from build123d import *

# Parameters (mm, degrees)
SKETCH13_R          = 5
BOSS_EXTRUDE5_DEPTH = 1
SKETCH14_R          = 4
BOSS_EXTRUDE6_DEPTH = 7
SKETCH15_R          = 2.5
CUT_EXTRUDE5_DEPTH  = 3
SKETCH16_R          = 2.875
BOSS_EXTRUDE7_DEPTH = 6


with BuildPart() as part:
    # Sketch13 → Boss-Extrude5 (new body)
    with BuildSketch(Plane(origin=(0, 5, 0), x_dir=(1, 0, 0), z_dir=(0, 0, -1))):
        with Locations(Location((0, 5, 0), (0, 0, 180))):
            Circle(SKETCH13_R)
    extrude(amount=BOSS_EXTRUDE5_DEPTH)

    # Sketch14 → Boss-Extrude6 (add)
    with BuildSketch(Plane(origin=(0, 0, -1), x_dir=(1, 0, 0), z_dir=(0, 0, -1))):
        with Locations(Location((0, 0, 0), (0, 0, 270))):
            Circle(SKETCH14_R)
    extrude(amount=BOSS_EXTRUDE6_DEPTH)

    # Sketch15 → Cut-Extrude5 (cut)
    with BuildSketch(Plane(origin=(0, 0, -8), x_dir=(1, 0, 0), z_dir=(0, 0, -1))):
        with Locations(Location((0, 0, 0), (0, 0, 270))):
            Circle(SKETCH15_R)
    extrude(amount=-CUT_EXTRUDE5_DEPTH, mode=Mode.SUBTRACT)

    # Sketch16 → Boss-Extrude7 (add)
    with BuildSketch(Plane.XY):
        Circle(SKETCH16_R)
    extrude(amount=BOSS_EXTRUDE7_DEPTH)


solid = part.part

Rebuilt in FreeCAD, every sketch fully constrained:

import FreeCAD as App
import Part
import Sketcher

V = App.Vector
Q = App.Units.Quantity

doc = App.newDocument("Part")
body = doc.addObject("PartDesign::Body", "Body")

sketch1 = body.newObject("Sketcher::SketchObject", "Sketch")
sketch1.AttachmentSupport = (doc.getObject("XY_Plane"), [""])
sketch1.MapMode = "FlatFace"
sketch1.addGeometry(Part.Circle(V(0, 0, 0), V(0, 0, 1), 5), False)
sketch1.addConstraint([
    Sketcher.Constraint("Coincident", 0, 3, -1, 1),
    Sketcher.Constraint("Diameter", 0, Q("10 mm")),
])
pad1 = body.newObject("PartDesign::Pad", "Pad")
pad1.Profile = sketch1
pad1.Length = 1
pad1.Reversed = True

sketch2 = body.newObject("Sketcher::SketchObject", "Sketch001")
sketch2.AttachmentSupport = (doc.getObject("XY_Plane"), [""])
sketch2.MapMode = "FlatFace"
sketch2.AttachmentOffset = App.Placement(V(0, 0, -1), App.Rotation())
sketch2.addGeometry(Part.Circle(V(0, 0, 0), V(0, 0, 1), 4), False)
sketch2.addConstraint([
    Sketcher.Constraint("Coincident", 0, 3, -1, 1),
    Sketcher.Constraint("Diameter", 0, Q("8 mm")),
])
pad2 = body.newObject("PartDesign::Pad", "Pad001")
pad2.Profile = sketch2
pad2.Length = 7
pad2.Reversed = True

sketch3 = body.newObject("Sketcher::SketchObject", "Sketch002")
sketch3.AttachmentSupport = (doc.getObject("XY_Plane"), [""])
sketch3.MapMode = "FlatFace"
sketch3.AttachmentOffset = App.Placement(V(0, 0, -8), App.Rotation())
sketch3.addGeometry(Part.Circle(V(0, 0, 0), V(0, 0, 1), 2.5), False)
sketch3.addConstraint([
    Sketcher.Constraint("Coincident", 0, 3, -1, 1),
    Sketcher.Constraint("Diameter", 0, Q("5 mm")),
])
pocket1 = body.newObject("PartDesign::Pocket", "Pocket")
pocket1.Profile = sketch3
pocket1.Length = 3
pocket1.Reversed = True

sketch4 = body.newObject("Sketcher::SketchObject", "Sketch003")
sketch4.AttachmentSupport = (doc.getObject("XY_Plane"), [""])
sketch4.MapMode = "FlatFace"
sketch4.addGeometry(Part.Circle(V(0, 0, 0), V(0, 0, 1), 2.9), False)
sketch4.addConstraint([
    Sketcher.Constraint("Coincident", 0, 3, -1, 1),
    Sketcher.Constraint("Diameter", 0, Q("5.75 mm")),
])
pad3 = body.newObject("PartDesign::Pad", "Pad002")
pad3.Profile = sketch4
pad3.Length = 6

doc.recompute()
